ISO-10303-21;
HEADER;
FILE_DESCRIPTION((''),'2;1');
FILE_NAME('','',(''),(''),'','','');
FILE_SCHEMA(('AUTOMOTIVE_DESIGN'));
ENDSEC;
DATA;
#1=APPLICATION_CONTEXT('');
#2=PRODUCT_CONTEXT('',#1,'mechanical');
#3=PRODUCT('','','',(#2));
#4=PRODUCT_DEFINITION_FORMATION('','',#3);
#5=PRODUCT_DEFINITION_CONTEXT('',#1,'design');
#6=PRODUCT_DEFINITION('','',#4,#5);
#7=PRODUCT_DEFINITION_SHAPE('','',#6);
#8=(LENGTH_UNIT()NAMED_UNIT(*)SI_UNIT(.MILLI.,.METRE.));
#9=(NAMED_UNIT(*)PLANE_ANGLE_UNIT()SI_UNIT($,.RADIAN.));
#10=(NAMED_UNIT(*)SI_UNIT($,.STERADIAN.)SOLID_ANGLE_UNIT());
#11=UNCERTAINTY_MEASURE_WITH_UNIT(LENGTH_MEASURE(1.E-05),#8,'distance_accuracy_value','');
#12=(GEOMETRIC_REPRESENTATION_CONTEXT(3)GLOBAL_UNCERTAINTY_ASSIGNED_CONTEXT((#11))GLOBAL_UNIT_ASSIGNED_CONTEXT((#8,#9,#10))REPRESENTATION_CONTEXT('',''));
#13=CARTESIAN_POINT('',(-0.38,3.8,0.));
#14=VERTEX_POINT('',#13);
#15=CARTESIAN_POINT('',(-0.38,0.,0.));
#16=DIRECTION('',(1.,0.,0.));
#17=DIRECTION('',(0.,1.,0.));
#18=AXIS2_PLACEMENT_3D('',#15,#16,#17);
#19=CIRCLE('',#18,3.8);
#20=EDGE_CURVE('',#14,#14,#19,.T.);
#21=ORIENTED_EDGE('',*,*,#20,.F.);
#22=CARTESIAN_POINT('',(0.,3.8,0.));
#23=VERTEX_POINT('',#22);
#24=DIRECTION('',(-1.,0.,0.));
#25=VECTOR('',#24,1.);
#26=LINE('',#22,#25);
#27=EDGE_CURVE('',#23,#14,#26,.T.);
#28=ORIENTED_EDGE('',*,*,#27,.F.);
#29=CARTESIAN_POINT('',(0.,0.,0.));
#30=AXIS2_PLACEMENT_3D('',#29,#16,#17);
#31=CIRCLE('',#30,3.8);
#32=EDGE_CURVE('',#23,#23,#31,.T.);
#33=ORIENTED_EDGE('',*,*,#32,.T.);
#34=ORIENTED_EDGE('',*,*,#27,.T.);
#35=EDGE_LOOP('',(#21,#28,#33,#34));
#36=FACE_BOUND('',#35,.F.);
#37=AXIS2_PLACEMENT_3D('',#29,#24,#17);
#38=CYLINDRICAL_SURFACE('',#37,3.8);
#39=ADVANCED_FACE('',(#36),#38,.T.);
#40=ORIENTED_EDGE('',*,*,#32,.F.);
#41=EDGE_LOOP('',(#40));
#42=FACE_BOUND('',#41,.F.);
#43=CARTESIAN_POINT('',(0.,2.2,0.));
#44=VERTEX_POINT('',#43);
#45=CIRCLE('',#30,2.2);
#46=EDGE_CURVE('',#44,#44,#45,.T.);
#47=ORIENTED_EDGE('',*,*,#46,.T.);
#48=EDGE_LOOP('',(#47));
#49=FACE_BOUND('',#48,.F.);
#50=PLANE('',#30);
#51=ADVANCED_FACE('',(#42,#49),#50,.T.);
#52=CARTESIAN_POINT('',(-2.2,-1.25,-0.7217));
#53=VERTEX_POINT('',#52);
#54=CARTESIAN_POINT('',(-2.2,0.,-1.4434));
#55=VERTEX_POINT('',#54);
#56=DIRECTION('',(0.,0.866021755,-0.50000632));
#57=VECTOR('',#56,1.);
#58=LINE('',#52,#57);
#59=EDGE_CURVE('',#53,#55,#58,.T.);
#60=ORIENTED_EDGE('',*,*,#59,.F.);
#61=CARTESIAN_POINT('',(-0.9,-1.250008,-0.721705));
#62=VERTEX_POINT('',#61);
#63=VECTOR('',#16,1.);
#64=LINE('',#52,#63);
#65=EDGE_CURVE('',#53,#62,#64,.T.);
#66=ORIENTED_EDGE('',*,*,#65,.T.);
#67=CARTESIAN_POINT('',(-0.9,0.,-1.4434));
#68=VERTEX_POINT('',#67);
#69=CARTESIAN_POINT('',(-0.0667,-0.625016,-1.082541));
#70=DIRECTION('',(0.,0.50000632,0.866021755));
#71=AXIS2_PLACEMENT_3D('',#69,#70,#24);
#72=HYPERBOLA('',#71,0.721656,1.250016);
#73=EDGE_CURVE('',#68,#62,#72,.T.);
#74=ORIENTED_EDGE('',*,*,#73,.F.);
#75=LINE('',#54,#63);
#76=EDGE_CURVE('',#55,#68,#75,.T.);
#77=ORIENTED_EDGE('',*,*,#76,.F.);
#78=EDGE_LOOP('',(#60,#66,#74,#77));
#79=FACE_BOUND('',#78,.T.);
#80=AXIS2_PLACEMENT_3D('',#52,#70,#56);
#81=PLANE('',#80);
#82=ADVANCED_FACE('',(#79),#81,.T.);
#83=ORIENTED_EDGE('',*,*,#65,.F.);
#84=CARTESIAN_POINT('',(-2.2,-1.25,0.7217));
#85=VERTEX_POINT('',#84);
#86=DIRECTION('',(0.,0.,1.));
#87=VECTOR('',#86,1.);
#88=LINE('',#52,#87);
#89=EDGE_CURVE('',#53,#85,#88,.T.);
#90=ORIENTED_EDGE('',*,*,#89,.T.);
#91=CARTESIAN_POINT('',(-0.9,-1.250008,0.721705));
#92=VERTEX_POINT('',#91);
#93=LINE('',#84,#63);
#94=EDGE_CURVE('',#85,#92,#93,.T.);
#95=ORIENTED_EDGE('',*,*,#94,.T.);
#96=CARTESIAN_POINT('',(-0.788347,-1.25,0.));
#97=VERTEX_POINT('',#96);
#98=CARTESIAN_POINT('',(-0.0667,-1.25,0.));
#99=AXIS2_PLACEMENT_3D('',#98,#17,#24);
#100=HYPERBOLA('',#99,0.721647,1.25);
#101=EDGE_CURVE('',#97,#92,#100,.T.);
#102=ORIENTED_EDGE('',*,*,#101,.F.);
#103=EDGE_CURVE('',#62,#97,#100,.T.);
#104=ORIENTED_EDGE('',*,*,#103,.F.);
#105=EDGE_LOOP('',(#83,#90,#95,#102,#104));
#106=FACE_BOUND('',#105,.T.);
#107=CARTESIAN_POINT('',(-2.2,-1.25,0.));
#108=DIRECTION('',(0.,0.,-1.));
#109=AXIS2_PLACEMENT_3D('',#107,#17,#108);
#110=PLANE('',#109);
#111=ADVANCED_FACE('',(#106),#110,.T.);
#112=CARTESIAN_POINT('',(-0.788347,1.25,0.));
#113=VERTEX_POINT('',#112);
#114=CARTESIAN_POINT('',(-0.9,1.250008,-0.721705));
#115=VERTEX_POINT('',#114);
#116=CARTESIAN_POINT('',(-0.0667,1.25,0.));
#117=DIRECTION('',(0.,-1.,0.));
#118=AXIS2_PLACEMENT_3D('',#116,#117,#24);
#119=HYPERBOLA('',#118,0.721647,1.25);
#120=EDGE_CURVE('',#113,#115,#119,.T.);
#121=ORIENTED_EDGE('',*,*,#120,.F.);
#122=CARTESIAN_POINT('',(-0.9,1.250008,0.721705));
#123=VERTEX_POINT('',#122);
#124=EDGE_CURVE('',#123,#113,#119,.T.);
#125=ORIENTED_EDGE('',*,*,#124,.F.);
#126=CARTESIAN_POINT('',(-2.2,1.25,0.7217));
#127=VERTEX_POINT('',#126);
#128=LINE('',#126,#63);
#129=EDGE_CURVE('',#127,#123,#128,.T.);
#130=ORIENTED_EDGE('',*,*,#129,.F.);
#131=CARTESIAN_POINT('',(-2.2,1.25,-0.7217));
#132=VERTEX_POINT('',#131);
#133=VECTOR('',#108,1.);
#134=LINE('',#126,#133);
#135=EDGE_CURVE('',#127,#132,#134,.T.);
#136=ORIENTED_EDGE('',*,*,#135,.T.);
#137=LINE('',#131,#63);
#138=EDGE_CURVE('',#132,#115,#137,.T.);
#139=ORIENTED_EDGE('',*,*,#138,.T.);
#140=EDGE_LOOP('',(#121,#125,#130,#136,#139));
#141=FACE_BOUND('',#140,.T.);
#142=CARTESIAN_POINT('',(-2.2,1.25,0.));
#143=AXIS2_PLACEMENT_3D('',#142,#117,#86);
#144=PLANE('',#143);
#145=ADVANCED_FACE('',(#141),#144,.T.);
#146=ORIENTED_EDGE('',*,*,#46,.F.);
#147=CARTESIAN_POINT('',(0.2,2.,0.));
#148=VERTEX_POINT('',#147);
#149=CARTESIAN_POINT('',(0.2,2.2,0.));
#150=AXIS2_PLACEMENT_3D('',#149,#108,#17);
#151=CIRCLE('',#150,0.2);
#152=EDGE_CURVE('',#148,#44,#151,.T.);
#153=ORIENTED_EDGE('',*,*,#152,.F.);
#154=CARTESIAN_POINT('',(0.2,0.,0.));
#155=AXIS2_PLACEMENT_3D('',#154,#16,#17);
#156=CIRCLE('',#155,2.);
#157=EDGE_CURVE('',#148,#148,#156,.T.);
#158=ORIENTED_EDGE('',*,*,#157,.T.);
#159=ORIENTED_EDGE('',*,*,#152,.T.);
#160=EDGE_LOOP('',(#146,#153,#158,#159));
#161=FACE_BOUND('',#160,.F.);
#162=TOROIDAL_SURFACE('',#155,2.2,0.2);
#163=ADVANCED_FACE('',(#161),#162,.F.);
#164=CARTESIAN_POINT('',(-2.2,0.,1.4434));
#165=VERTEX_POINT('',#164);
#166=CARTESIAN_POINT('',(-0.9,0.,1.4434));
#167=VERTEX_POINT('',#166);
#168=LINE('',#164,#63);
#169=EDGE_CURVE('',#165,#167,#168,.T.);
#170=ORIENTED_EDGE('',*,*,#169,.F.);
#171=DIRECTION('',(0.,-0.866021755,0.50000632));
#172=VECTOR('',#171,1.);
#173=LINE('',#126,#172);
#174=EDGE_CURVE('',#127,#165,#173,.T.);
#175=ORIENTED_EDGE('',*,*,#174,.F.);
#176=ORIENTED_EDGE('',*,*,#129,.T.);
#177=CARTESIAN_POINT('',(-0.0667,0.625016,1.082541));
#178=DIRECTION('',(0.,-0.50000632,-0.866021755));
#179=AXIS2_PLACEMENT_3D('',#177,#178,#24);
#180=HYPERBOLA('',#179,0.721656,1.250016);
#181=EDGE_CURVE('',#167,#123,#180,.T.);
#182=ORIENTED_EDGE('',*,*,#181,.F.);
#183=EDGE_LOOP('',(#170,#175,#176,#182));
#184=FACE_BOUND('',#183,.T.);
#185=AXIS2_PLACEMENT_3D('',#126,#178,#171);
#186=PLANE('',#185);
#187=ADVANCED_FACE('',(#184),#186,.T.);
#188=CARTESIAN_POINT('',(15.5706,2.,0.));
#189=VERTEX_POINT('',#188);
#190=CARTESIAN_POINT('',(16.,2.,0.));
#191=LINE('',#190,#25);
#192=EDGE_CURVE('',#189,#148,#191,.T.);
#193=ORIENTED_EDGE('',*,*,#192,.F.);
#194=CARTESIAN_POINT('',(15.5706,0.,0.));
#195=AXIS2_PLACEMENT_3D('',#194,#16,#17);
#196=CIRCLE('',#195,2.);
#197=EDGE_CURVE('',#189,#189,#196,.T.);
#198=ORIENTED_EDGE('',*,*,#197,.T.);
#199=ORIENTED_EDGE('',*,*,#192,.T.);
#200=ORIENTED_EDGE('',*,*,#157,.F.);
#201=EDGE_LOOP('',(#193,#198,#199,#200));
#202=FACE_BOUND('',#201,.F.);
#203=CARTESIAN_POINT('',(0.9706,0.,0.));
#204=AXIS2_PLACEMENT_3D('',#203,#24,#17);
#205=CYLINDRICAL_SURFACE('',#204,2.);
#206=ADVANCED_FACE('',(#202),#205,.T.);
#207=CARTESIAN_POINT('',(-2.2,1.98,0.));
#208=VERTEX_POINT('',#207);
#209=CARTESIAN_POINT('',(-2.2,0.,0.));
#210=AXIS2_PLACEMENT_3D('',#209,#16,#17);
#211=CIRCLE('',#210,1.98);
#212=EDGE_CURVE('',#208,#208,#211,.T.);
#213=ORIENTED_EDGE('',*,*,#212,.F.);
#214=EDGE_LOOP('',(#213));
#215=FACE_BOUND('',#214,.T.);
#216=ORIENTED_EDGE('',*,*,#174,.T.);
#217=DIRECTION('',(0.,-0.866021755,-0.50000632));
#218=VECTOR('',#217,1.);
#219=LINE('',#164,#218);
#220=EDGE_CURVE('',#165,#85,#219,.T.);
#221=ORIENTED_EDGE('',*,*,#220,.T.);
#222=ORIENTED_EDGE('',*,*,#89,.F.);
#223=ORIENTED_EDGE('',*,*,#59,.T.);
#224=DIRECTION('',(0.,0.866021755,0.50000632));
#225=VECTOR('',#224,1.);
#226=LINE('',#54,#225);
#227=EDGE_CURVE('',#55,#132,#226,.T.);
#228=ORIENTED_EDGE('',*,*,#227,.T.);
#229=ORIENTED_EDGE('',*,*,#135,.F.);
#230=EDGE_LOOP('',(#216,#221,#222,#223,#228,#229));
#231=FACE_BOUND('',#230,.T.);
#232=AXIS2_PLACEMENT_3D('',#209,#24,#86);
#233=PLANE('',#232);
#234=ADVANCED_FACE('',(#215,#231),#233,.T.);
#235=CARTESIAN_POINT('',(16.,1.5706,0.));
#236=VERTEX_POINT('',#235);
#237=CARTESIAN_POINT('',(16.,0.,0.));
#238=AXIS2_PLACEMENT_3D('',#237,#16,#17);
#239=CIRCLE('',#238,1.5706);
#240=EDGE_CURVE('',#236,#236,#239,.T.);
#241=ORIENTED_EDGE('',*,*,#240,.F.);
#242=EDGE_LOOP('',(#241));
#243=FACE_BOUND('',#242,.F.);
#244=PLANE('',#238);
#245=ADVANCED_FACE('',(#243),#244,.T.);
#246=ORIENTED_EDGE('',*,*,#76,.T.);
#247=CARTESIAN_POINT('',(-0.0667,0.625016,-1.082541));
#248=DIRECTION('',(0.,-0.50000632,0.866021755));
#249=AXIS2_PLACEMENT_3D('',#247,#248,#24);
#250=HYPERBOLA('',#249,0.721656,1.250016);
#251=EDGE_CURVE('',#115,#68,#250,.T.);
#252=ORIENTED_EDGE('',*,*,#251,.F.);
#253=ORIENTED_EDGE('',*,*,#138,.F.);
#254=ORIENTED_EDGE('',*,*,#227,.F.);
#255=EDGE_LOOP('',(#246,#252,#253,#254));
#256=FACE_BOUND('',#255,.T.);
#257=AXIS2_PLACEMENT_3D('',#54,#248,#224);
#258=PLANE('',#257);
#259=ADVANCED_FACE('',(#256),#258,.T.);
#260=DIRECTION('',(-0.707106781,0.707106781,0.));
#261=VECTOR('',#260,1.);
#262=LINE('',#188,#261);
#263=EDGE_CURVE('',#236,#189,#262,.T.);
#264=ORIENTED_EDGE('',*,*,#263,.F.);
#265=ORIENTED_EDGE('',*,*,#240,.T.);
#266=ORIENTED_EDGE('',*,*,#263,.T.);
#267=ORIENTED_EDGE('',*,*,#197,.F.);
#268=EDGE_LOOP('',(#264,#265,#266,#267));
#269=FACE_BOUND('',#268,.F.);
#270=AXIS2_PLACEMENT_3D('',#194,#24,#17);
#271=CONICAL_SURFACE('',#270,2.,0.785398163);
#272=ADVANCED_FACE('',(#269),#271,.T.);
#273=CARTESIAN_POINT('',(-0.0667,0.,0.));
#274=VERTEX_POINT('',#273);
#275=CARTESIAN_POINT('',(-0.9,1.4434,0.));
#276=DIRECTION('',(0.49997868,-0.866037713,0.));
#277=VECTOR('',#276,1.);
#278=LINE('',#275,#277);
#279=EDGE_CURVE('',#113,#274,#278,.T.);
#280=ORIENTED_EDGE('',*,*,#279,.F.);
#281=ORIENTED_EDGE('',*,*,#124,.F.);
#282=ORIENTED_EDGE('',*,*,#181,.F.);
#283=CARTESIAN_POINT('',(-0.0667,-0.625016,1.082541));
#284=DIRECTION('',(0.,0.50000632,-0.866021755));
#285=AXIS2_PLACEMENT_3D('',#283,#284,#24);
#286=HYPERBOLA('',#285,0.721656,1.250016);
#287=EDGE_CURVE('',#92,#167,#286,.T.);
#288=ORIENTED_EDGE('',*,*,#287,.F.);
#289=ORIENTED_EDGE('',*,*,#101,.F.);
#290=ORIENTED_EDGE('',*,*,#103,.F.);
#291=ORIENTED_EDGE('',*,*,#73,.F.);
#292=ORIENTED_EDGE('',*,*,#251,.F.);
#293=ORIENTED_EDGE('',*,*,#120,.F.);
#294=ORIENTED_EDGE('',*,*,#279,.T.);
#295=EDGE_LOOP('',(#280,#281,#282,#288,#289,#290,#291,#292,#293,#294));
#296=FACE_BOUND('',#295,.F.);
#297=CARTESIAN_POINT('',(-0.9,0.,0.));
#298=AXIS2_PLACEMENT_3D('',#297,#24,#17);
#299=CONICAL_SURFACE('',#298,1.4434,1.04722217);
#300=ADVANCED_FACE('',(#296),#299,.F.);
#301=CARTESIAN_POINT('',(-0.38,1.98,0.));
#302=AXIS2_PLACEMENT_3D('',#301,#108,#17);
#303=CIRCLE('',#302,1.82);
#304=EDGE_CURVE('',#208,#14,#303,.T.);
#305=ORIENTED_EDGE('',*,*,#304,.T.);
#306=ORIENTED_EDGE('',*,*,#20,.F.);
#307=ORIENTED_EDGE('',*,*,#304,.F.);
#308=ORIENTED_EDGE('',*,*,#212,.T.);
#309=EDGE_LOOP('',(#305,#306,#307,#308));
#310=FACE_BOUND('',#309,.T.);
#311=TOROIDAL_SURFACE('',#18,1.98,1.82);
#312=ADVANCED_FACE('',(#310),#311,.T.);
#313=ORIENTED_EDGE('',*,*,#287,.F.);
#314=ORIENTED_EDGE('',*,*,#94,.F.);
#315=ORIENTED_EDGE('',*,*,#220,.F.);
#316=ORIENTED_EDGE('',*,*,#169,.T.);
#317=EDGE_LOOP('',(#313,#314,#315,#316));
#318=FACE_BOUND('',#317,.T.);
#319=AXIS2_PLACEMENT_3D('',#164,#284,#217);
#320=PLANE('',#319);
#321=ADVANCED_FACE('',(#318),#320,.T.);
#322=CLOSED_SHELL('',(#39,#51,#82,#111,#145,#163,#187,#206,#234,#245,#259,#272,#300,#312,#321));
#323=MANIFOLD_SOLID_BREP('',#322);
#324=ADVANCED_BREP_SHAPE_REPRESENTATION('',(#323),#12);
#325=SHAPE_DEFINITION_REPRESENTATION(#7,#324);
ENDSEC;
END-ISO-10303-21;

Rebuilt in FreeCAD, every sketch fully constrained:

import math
import FreeCAD as App
import Part
import Sketcher

V = App.Vector
Q = App.Units.Quantity


def edges_at(feature, points):
    """Names of the edges that pass closest to the given points."""
    edges = feature.Shape.Edges
    near = lambda p: min(range(len(edges)), key=lambda i: edges[i].distToShape(Part.Vertex(*p))[0])
    return sorted({f"Edge{near(p) + 1}" for p in points})

doc = App.newDocument("Part")
body = doc.addObject("PartDesign::Body", "Body")

# Sketch on XY plane
sketch1 = body.newObject("Sketcher::SketchObject", "Sketch")
sketch1.AttachmentSupport = (doc.getObject("XY_Plane"), [""])
sketch1.MapMode = "FlatFace"
sketch1.addGeometry(Part.LineSegment(V(-0.9, 1.4434, 0), V(-0.0667, 0, 0)), False)
sketch1.addGeometry(Part.LineSegment(V(-0.0667, 0, 0), V(16, 0, 0)), False)
sketch1.addGeometry(Part.LineSegment(V(16, 0, 0), V(16, 2, 0)), False)
sketch1.addGeometry(Part.LineSegment(V(16, 2, 0), V(0, 2, 0)), False)
sketch1.addGeometry(Part.LineSegment(V(0, 2, 0), V(0, 3.8, 0)), False)
sketch1.addGeometry(Part.LineSegment(V(0, 3.8, 0), V(-2.2, 3.8, 0)), False)
sketch1.addGeometry(Part.LineSegment(V(-2.2, 3.8, 0), V(-2.2, 1.4434, 0)), False)
sketch1.addGeometry(Part.LineSegment(V(-2.2, 1.4434, 0), V(-0.9, 1.4434, 0)), False)
sketch1.addConstraint(Sketcher.Constraint("Coincident", 0, 2, 1, 1))
sketch1.addConstraint(Sketcher.Constraint("Coincident", 1, 2, 2, 1))
sketch1.addConstraint(Sketcher.Constraint("Coincident", 2, 2, 3, 1))
sketch1.addConstraint(Sketcher.Constraint("Coincident", 3, 2, 4, 1))
sketch1.addConstraint(Sketcher.Constraint("Coincident", 4, 2, 5, 1))
sketch1.addConstraint(Sketcher.Constraint("Coincident", 5, 2, 6, 1))
sketch1.addConstraint(Sketcher.Constraint("Coincident", 6, 2, 7, 1))
sketch1.addConstraint(Sketcher.Constraint("Coincident", 7, 2, 0, 1))
sketch1.addConstraint(Sketcher.Constraint("Horizontal", 1))
sketch1.addConstraint(Sketcher.Constraint("Vertical", 2))
sketch1.addConstraint(Sketcher.Constraint("Horizontal", 3))
sketch1.addConstraint(Sketcher.Constraint("Vertical", 4))
sketch1.addConstraint(Sketcher.Constraint("Horizontal", 5))
sketch1.addConstraint(Sketcher.Constraint("Vertical", 6))
sketch1.addConstraint(Sketcher.Constraint("Horizontal", 7))
sketch1.addConstraint(Sketcher.Constraint("PointOnObject", 0, 2, -1))
sketch1.addConstraint(Sketcher.Constraint("PointOnObject", 3, 2, -2))
sketch1.addConstraint(Sketcher.Constraint("DistanceX", 3, 2, 3, 1, 16.0))
sketch1.addConstraint(Sketcher.Constraint("DistanceX", 5, 2, 5, 1, 2.2))
sketch1.addConstraint(Sketcher.Constraint("DistanceX", 7, 1, 7, 2, 1.3))
sketch1.addConstraint(Sketcher.Constraint("DistanceY", 2, 1, 2, 2, 2.0))
sketch1.addConstraint(Sketcher.Constraint("DistanceY", 4, 1, 4, 2, 1.8))
sketch1.addConstraint(Sketcher.Constraint("DistanceX", 1, 1, 1, 2, 16.0667))
sketch1.addConstraint(Sketcher.Constraint("DistanceY", 6, 2, 6, 1, 2.3566))
revolution = body.newObject("PartDesign::Revolution", "Revolution")
revolution.Profile = sketch1
revolution.ReferenceAxis = (sketch1, ["H_Axis"])
revolution.Angle = 360

# Sketch on YZ plane
sketch2 = body.newObject("Sketcher::SketchObject", "Sketch001")
sketch2.AttachmentSupport = (doc.getObject("YZ_Plane"), [""])
sketch2.MapMode = "FlatFace"
sketch2.AttachmentOffset = App.Placement(V(0, 0, -2.2), App.Rotation())
sketch2.addGeometry(Part.LineSegment(V(1.25, 0.7217, 0), V(0, 1.4434, 0)), False)
sketch2.addGeometry(Part.ArcOfCircle(Part.Circle(V(0, 0, 0), V(0, 0, 1), 1.4434), math.radians(30.000418), math.radians(90)), False)
sketch2.addGeometry(Part.ArcOfCircle(Part.Circle(V(0, 0, 0), V(0, 0, 1), 1.4434), math.radians(90), math.radians(149.999582)), False)
sketch2.addGeometry(Part.LineSegment(V(0, 1.4434, 0), V(-1.25, 0.7217, 0)), False)
sketch2.addGeometry(Part.ArcOfCircle(Part.Circle(V(0, 0, 0), V(0, 0, 1), 1.4434), math.radians(-30.000418), math.radians(30.000418)), False)
sketch2.addGeometry(Part.LineSegment(V(1.25, 0.7217, 0), V(1.25, -0.7217, 0)), False)
sketch2.addGeometry(Part.LineSegment(V(-1.25, 0.7217, 0), V(-1.25, -0.7217, 0)), False)
sketch2.addGeometry(Part.ArcOfCircle(Part.Circle(V(0, 0, 0), V(0, 0, 1), 1.4434), math.radians(149.999582), math.radians(210.000418)), False)
sketch2.addGeometry(Part.LineSegment(V(-1.25, -0.7217, 0), V(0, -1.4434, 0)), False)
sketch2.addGeometry(Part.ArcOfCircle(Part.Circle(V(0, 0, 0), V(0, 0, 1), 1.4434), math.radians(-149.999582), math.radians(-90)), False)
sketch2.addGeometry(Part.ArcOfCircle(Part.Circle(V(0, 0, 0), V(0, 0, 1), 1.4434), math.radians(-90), math.radians(-30.000418)), False)
sketch2.addGeometry(Part.LineSegment(V(0, -1.4434, 0), V(1.25, -0.7217, 0)), False)
sketch2.addConstraint(Sketcher.Constraint("Coincident", 0, 1, 1, 1))
sketch2.addConstraint(Sketcher.Constraint("Coincident", 1, 2, 0, 2))
sketch2.addConstraint(Sketcher.Constraint("Coincident", 2, 1, 3, 1))
sketch2.addConstraint(Sketcher.Constraint("Coincident", 3, 2, 2, 2))
sketch2.addConstraint(Sketcher.Constraint("Coincident", 4, 1, 5, 2))
sketch2.addConstraint(Sketcher.Constraint("Coincident", 5, 1, 4, 2))
sketch2.addConstraint(Sketcher.Constraint("Coincident", 6, 1, 7, 1))
sketch2.addConstraint(Sketcher.Constraint("Coincident", 7, 2, 6, 2))
sketch2.addConstraint(Sketcher.Constraint("Coincident", 8, 1, 9, 1))
sketch2.addConstraint(Sketcher.Constraint("Coincident", 9, 2, 8, 2))
sketch2.addConstraint(Sketcher.Constraint("Coincident", 10, 1, 11, 1))
sketch2.addConstraint(Sketcher.Constraint("Coincident", 11, 2, 10, 2))
sketch2.addConstraint(Sketcher.Constraint("Vertical", 5))
sketch2.addConstraint(Sketcher.Constraint("Vertical", 6))
sketch2.addConstraint(Sketcher.Constraint("Coincident", 1, 3, -1, 1))
sketch2.addConstraint(Sketcher.Constraint("Coincident", 2, 3, -1, 1))
sketch2.addConstraint(Sketcher.Constraint("Coincident", 4, 3, -1, 1))
sketch2.addConstraint(Sketcher.Constraint("Coincident", 7, 3, -1, 1))
sketch2.addConstraint(Sketcher.Constraint("Coincident", 9, 3, -1, 1))
sketch2.addConstraint(Sketcher.Constraint("Coincident", 10, 3, -1, 1))
sketch2.addConstraint(Sketcher.Constraint("Coincident", 2, 1, 1, 2))
sketch2.addConstraint(Sketcher.Constraint("Coincident", 5, 1, 0, 1))
sketch2.addConstraint(Sketcher.Constraint("Coincident", 6, 1, 3, 2))
sketch2.addConstraint(Sketcher.Constraint("Coincident", 8, 1, 7, 2))
sketch2.addConstraint(Sketcher.Constraint("Coincident", 10, 1, 9, 2))
sketch2.addConstraint(Sketcher.Constraint("PointOnObject", 1, 2, -2))
sketch2.addConstraint(Sketcher.Constraint("PointOnObject", 9, 2, -2))
sketch2.addConstraint(Sketcher.Constraint("Parallel", 0, 8))
sketch2.addConstraint(Sketcher.Constraint("Parallel", 3, 11))
sketch2.addConstraint(Sketcher.Constraint("Angle", 0, Q("149.9996 deg")))
sketch2.addConstraint(Sketcher.Constraint("Radius", 1, 1.4434))
pad1 = body.newObject("PartDesign::Pad", "Pad")
pad1.Profile = sketch2
pad1.Type = "UpToFirst"
doc.recompute()

fillet = body.newObject("PartDesign::Fillet", "Fillet")
fillet.Base = (pad1, edges_at(pad1, [(-2.2, -3.8, 0)]))
fillet.Radius = 1.82
doc.recompute()

chamfer = body.newObject("PartDesign::Chamfer", "Chamfer")
chamfer.Base = (fillet, edges_at(fillet, [(16, -2, 0)]))
chamfer.ChamferType = "Two distances"
chamfer.Size = 0.4294
chamfer.Size2 = 0.4294
doc.recompute()

fillet2 = body.newObject("PartDesign::Fillet", "Fillet001")
fillet2.Base = (chamfer, edges_at(chamfer, [(0, -2, 0)]))
fillet2.Radius = 0.2

doc.recompute()
